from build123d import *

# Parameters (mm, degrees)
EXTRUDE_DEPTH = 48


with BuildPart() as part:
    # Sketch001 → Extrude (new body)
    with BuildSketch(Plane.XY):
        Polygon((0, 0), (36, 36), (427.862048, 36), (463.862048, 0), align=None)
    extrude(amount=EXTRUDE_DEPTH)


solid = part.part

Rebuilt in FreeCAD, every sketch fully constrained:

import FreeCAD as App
import Part
import Sketcher
from FreeCAD import Vector

doc = App.newDocument("Part")
params = doc.addObject("Spreadsheet::Sheet", "Params")
for row, (alias, value) in enumerate([
    ("pad1_length", "48 mm"),
], start=1):
    params.set(f"A{row}", alias)
    params.set(f"B{row}", "=" + value)
    params.setAlias(f"B{row}", alias)

body = doc.addObject("PartDesign::Body", "Body")

# Sketch on XY plane
sketch1 = body.newObject("Sketcher::SketchObject", "Sketch")
sketch1.AttachmentSupport = (doc.getObject("XY_Plane"), [""])
sketch1.MapMode = "FlatFace"
sketch1.addGeometry([
    Part.LineSegment(Vector(36, 36, 0), Vector(0, 0, 0)),
    Part.LineSegment(Vector(0, 0, 0), Vector(463.862048, 0, 0)),
    Part.LineSegment(Vector(463.862048, 0, 0), Vector(427.862048, 36, 0)),
    Part.LineSegment(Vector(427.862048, 36, 0), Vector(36, 36, 0)),
], False)
sketch1.addConstraint([
    Sketcher.Constraint("Coincident", 0, 2, 1, 1),
    Sketcher.Constraint("Coincident", 1, 2, 2, 1),
    Sketcher.Constraint("Coincident", 2, 2, 3, 1),
    Sketcher.Constraint("Coincident", 3, 2, 0, 1),
    Sketcher.Constraint("Horizontal", 1),
    Sketcher.Constraint("Horizontal", 3),
    Sketcher.Constraint("Coincident", 0, 2, -1, 1),
    Sketcher.Constraint("Perpendicular", 0, 2),
    Sketcher.Constraint("Equal", 0, 2),
    Sketcher.Constraint("DistanceY", -1, 1, 2, 2, 36.0),
    Sketcher.Constraint("DistanceX", 1, 1, 1, 2, 463.862048),
])
pad1 = body.newObject("PartDesign::Pad", "Pad")
pad1.Profile = sketch1
pad1.setExpression("Length", "Params.pad1_length")

doc.recompute()
